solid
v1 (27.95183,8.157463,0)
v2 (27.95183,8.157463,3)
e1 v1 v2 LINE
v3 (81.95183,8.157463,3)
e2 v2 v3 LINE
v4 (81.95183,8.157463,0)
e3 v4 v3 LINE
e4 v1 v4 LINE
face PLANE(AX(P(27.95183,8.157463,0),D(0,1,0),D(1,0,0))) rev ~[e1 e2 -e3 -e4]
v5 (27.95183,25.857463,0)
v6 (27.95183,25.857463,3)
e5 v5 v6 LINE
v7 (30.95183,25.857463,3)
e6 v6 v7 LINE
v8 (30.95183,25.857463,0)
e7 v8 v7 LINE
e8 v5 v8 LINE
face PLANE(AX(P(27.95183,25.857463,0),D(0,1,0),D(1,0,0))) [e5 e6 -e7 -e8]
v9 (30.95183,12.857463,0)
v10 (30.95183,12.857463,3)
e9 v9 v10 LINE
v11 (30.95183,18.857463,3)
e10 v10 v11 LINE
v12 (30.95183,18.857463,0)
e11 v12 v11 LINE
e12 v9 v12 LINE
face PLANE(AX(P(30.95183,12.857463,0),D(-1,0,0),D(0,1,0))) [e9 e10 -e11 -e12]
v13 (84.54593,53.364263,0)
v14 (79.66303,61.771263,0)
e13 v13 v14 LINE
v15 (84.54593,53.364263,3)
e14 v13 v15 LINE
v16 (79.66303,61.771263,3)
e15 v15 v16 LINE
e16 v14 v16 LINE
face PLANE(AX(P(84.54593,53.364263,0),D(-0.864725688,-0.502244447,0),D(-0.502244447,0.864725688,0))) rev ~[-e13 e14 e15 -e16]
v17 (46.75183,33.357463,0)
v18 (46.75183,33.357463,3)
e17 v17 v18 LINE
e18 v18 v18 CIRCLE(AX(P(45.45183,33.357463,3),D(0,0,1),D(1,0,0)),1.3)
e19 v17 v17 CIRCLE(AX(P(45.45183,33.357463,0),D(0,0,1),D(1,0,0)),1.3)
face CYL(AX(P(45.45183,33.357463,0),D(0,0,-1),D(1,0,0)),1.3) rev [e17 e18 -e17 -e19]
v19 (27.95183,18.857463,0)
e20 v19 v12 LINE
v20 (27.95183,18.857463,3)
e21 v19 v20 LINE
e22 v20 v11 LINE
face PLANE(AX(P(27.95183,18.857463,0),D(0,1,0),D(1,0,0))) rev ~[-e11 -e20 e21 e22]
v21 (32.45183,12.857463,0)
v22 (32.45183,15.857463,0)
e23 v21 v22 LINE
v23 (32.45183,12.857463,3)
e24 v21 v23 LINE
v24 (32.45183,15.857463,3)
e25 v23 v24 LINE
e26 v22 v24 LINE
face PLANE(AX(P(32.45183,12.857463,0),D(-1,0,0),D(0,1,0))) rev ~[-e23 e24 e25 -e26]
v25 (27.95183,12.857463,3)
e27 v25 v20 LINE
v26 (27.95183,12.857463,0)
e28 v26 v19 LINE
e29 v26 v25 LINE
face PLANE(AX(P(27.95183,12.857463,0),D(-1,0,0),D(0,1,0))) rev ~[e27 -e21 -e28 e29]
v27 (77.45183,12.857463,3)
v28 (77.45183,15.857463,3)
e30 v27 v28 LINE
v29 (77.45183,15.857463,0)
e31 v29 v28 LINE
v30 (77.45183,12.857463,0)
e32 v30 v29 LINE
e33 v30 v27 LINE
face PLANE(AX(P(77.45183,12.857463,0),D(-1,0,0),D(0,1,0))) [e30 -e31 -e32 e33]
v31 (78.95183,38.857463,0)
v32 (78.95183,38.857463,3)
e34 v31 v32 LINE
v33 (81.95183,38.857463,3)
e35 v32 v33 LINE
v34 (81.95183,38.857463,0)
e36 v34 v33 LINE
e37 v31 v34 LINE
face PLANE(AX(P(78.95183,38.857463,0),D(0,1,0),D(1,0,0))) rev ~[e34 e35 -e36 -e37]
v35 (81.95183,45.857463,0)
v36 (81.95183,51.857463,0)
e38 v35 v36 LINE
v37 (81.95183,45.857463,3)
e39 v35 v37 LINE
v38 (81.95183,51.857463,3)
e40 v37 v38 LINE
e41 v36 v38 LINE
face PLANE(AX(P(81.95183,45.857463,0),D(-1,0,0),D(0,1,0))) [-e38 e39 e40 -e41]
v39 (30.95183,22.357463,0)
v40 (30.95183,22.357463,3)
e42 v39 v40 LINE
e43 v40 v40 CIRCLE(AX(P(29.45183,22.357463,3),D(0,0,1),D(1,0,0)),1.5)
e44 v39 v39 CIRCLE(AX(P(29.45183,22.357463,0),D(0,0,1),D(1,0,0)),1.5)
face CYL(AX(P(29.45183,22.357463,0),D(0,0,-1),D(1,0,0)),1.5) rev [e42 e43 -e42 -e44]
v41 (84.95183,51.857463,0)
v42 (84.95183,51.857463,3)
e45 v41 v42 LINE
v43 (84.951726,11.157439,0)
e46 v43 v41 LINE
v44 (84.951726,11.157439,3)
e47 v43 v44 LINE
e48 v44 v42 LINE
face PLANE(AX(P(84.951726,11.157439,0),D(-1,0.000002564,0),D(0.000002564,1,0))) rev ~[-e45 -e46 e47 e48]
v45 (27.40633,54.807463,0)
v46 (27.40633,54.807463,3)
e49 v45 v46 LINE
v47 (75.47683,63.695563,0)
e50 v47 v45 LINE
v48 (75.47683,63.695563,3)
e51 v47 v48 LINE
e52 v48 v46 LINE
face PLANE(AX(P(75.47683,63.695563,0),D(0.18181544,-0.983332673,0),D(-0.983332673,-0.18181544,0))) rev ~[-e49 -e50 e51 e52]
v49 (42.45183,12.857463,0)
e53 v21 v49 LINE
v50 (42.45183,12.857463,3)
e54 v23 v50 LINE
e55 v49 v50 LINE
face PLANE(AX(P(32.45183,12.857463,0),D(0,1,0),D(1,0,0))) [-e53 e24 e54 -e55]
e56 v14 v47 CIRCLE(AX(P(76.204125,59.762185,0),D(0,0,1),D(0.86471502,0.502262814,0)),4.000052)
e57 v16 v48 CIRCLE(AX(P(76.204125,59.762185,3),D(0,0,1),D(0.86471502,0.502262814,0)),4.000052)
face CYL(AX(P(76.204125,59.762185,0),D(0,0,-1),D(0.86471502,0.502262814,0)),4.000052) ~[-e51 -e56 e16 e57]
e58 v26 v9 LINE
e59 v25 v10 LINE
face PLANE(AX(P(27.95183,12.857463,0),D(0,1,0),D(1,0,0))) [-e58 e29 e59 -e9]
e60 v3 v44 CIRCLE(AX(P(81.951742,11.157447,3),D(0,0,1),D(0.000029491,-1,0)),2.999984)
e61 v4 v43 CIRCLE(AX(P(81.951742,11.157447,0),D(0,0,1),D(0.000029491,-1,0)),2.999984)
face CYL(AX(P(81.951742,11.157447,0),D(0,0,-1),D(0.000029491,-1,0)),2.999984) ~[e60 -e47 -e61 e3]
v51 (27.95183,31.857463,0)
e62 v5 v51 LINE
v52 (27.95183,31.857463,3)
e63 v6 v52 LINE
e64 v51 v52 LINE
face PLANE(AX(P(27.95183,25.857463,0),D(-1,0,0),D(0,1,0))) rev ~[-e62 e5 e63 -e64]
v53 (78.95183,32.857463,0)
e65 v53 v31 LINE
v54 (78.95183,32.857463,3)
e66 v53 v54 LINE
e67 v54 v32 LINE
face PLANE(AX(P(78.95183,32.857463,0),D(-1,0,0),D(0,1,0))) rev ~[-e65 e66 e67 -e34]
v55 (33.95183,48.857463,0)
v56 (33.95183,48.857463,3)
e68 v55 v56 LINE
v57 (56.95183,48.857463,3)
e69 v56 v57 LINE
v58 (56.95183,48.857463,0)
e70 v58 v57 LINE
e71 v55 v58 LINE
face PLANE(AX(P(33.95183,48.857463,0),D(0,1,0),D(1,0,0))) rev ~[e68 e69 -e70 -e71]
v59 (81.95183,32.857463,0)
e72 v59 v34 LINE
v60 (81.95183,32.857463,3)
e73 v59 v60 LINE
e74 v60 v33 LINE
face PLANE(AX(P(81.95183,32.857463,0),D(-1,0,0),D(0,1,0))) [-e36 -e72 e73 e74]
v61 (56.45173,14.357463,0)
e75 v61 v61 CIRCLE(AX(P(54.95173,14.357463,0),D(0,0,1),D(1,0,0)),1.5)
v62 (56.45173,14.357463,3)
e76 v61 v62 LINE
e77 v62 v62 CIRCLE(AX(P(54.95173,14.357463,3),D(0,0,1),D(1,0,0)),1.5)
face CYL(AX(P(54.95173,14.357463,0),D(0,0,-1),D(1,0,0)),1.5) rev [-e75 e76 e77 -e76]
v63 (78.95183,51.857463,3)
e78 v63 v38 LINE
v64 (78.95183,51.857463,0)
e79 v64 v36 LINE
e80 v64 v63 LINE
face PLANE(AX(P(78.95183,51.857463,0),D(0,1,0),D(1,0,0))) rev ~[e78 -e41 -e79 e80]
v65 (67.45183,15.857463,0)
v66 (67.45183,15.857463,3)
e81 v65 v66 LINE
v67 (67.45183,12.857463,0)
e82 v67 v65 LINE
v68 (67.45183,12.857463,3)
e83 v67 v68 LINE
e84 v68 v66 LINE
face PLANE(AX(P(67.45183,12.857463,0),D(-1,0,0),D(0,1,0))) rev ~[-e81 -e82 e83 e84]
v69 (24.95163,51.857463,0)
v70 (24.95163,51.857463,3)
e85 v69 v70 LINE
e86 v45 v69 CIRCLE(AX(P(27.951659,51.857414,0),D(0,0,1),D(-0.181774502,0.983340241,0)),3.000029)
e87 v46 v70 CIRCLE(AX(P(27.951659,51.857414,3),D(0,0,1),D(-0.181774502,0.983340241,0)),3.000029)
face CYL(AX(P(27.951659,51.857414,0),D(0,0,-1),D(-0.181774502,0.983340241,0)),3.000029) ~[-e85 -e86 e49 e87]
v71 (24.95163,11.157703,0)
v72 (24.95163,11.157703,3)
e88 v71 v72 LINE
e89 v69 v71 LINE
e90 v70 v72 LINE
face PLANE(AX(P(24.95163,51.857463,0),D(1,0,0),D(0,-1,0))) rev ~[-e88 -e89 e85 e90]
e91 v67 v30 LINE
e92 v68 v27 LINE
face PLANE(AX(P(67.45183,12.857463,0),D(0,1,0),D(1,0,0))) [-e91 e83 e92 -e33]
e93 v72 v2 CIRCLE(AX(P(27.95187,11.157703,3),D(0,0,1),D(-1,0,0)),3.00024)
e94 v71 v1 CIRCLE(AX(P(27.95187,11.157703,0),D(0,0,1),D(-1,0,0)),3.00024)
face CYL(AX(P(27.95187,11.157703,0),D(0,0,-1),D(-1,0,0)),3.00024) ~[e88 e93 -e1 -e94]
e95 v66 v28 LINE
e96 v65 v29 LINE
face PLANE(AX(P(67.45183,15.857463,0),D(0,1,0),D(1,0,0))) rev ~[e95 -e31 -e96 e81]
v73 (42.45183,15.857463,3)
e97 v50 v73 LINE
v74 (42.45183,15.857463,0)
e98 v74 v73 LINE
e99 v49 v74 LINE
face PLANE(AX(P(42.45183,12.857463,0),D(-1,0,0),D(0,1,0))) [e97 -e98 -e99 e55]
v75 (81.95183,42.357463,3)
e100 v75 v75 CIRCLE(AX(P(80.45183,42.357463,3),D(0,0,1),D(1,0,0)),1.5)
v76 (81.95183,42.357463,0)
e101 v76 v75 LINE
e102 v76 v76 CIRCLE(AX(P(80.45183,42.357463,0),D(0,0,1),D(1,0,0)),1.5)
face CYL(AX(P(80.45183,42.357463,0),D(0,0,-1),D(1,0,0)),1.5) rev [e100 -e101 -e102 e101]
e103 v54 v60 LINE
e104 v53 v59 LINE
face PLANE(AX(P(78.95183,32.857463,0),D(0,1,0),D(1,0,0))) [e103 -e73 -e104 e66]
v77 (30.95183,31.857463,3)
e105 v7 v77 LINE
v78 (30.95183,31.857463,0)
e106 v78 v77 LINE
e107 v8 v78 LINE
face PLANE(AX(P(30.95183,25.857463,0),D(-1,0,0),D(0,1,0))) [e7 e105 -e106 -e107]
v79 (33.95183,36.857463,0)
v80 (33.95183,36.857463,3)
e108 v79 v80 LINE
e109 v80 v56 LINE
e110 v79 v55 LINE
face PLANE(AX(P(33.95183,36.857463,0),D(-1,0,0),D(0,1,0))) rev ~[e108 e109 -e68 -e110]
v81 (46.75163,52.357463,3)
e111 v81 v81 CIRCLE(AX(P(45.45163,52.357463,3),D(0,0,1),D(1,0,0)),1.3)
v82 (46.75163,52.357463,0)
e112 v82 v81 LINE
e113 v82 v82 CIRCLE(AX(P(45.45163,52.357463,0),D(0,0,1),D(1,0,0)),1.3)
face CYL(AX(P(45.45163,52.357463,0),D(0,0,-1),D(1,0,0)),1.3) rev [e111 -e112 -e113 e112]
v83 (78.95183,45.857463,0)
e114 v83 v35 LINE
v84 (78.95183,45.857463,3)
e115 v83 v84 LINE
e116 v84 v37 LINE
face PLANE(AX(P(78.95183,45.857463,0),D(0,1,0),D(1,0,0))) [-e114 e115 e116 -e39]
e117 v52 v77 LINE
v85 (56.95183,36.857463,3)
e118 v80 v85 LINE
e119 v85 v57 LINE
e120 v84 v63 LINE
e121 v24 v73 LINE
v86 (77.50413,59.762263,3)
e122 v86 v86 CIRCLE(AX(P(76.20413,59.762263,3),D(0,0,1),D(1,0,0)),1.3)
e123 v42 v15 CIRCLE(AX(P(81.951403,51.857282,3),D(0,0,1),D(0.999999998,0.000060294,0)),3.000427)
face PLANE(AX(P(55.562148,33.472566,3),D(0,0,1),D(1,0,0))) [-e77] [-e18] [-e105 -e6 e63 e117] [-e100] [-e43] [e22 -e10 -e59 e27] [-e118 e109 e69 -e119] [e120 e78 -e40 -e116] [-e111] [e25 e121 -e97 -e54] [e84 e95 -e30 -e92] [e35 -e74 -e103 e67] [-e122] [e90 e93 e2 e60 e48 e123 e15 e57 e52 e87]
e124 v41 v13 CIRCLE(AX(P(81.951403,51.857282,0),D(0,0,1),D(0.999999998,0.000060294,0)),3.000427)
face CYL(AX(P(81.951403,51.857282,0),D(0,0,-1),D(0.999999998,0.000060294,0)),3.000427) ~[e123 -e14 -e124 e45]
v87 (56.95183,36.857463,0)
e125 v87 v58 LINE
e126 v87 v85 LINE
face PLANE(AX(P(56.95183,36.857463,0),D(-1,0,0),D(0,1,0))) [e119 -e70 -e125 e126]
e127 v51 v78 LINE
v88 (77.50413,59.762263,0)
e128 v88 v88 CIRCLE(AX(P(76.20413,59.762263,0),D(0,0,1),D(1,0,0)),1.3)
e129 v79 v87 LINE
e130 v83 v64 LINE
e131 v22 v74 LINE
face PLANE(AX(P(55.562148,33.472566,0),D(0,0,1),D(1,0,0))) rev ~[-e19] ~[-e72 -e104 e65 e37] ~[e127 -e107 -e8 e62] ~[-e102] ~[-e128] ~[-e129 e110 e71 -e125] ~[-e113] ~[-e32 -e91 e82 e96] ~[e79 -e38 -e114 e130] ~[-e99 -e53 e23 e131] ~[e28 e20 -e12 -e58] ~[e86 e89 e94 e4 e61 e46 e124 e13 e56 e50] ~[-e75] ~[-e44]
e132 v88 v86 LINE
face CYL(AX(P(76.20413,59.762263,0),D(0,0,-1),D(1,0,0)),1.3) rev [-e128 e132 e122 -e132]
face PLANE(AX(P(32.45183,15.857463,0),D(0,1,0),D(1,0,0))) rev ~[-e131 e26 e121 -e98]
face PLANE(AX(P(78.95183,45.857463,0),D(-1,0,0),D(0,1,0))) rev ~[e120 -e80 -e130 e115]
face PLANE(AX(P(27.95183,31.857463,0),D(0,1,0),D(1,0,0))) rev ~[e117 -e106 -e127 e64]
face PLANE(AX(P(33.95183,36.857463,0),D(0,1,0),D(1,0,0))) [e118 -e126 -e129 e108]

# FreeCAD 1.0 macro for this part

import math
import FreeCAD as App
import Part
import Sketcher

V = App.Vector
Q = App.Units.Quantity


def add_polygon(sketch, points):
    """Adds a closed chain of lines whose ends are joined by coincident constraints."""
    first, n = sketch.GeometryCount, len(points)
    for a, b in zip(points, points[1:] + points[:1]):
        sketch.addGeometry(Part.LineSegment(App.Vector(*a, 0), App.Vector(*b, 0)), False)
    for i in range(n):
        sketch.addConstraint(Sketcher.Constraint("Coincident", first + i, 2, first + (i + 1) % n, 1))

doc = App.newDocument("Part")
body = doc.addObject("PartDesign::Body", "Body")

# Sketch on XY plane
sketch1 = body.newObject("Sketcher::SketchObject", "Sketch")
sketch1.AttachmentSupport = (doc.getObject("XY_Plane"), [""])
sketch1.MapMode = "FlatFace"
sketch1.addGeometry(Part.LineSegment(V(25, 51.9, 0), V(25, 11.2, 0)), False)  # 0
sketch1.addGeometry(Part.ArcOfCircle(Part.Circle(V(28, 11.2, 0), V(0, 0, 1), 3), math.radians(180), math.radians(270)), False)  # 1
sketch1.addGeometry(Part.LineSegment(V(28, 8.2, 0), V(82, 8.2, 0)), False)  # 2
sketch1.addGeometry(Part.ArcOfCircle(Part.Circle(V(82, 11.2, 0), V(0, 0, 1), 3), math.radians(-90), math.radians(0)), False)  # 3
sketch1.addGeometry(Part.LineSegment(V(85, 11.2, 0), V(85, 51.9, 0)), False)  # 4
sketch1.addGeometry(Part.ArcOfCircle(Part.Circle(V(82, 51.9, 0), V(0, 0, 1), 3), math.radians(0), math.radians(30)), False)  # 5
sketch1.addGeometry(Part.LineSegment(V(84.5, 53.4, 0), V(79.7, 61.8, 0)), False)  # 6
sketch1.addGeometry(Part.ArcOfCircle(Part.Circle(V(76.2, 59.8, 0), V(0, 0, 1), 4), math.radians(30), math.radians(100)), False)  # 7
sketch1.addGeometry(Part.LineSegment(V(75.5, 63.7, 0), V(27.4, 54.8, 0)), False)  # 8
sketch1.addGeometry(Part.ArcOfCircle(Part.Circle(V(28, 51.9, 0), V(0, 0, 1), 3), math.radians(100), math.radians(180)), False)  # 9
add_polygon(sketch1, [(31, 12.9), (28, 12.9), (28, 18.9), (31, 18.9)])  # lines 10-13
add_polygon(sketch1, [(42.5, 12.9), (32.5, 12.9), (32.5, 15.9), (42.5, 15.9)])  # lines 14-17
sketch1.addGeometry(Part.Circle(V(29.5, 22.4, 0), V(0, 0, 1), 1.5), False)  # 18
sketch1.addGeometry(Part.Circle(V(55, 14.4, 0), V(0, 0, 1), 1.5), False)  # 19
add_polygon(sketch1, [(31, 25.9), (28, 25.9), (28, 31.9), (31, 31.9)])  # lines 20-23
sketch1.addGeometry(Part.Circle(V(45.5, 33.4, 0), V(0, 0, 1), 1.3), False)  # 24
add_polygon(sketch1, [(77.5, 12.9), (67.5, 12.9), (67.5, 15.9), (77.5, 15.9)])  # lines 25-28
add_polygon(sketch1, [(82, 32.9), (79, 32.9), (79, 38.9), (82, 38.9)])  # lines 29-32
add_polygon(sketch1, [(57, 36.9), (34, 36.9), (34, 48.9), (57, 48.9)])  # lines 33-36
sketch1.addGeometry(Part.Circle(V(45.5, 52.4, 0), V(0, 0, 1), 1.3), False)  # 37
sketch1.addGeometry(Part.Circle(V(80.5, 42.4, 0), V(0, 0, 1), 1.5), False)  # 38
add_polygon(sketch1, [(82, 45.9), (79, 45.9), (79, 51.9), (82, 51.9)])  # lines 39-42
sketch1.addGeometry(Part.Circle(V(76.2, 59.8, 0), V(0, 0, 1), 1.3), False)  # 43
sketch1.addConstraint([
    Sketcher.Constraint("Tangent", 0, 2, 1, 1),
    Sketcher.Constraint("Coincident", 1, 2, 2, 1),
    Sketcher.Constraint("Coincident", 2, 2, 3, 1),
    Sketcher.Constraint("Tangent", 3, 2, 4, 1),
    Sketcher.Constraint("Coincident", 4, 2, 5, 1),
    Sketcher.Constraint("Coincident", 5, 2, 6, 1),
    Sketcher.Constraint("Coincident", 6, 2, 7, 1),
    Sketcher.Constraint("Coincident", 7, 2, 8, 1),
    Sketcher.Constraint("Coincident", 8, 2, 9, 1),
    Sketcher.Constraint("Coincident", 9, 2, 0, 1),
    Sketcher.Constraint("Vertical", 0),
    Sketcher.Constraint("Horizontal", 2),
    Sketcher.Constraint("Horizontal", 10),
    Sketcher.Constraint("Vertical", 11),
    Sketcher.Constraint("Horizontal", 12),
    Sketcher.Constraint("Vertical", 13),
    Sketcher.Constraint("Horizontal", 14),
    Sketcher.Constraint("Vertical", 15),
    Sketcher.Constraint("Horizontal", 16),
    Sketcher.Constraint("Vertical", 17),
    Sketcher.Constraint("Horizontal", 20),
    Sketcher.Constraint("Vertical", 21),
    Sketcher.Constraint("Horizontal", 22),
    Sketcher.Constraint("Vertical", 23),
    Sketcher.Constraint("Horizontal", 25),
    Sketcher.Constraint("Vertical", 26),
    Sketcher.Constraint("Horizontal", 27),
    Sketcher.Constraint("Vertical", 28),
    Sketcher.Constraint("Horizontal", 29),
    Sketcher.Constraint("Vertical", 30),
    Sketcher.Constraint("Horizontal", 31),
    Sketcher.Constraint("Vertical", 32),
    Sketcher.Constraint("Horizontal", 33),
    Sketcher.Constraint("Vertical", 34),
    Sketcher.Constraint("Horizontal", 35),
    Sketcher.Constraint("Vertical", 36),
    Sketcher.Constraint("Horizontal", 39),
    Sketcher.Constraint("Vertical", 40),
    Sketcher.Constraint("Horizontal", 41),
    Sketcher.Constraint("Vertical", 42),
    Sketcher.Constraint("Equal", 18, 19),
    Sketcher.Constraint("Equal", 24, 37),
    Sketcher.Constraint("Equal", 19, 38),
    Sketcher.Constraint("Equal", 37, 43),
    Sketcher.Constraint("Horizontal", 4, 2, 9, 2),
    Sketcher.Constraint("Horizontal", 13, 2, 14, 2),
    Sketcher.Constraint("Horizontal", 17, 2, 25, 2),
    Sketcher.Constraint("Horizontal", 16, 2, 26, 2),
    Sketcher.Constraint("Horizontal", 9, 2, 40, 2),
    Sketcher.Constraint("Vertical", 1, 2, 10, 2),
    Sketcher.Constraint("Vertical", 11, 2, 20, 2),
    Sketcher.Constraint("Vertical", 13, 2, 22, 2),
    Sketcher.Constraint("Vertical", 2, 2, 31, 2),
    Sketcher.Constraint("Vertical", 30, 2, 39, 2),
    Sketcher.Constraint("Vertical", 32, 2, 41, 2),
    Sketcher.Constraint("Equal", 16, 25),
    Sketcher.Constraint("Equal", 22, 29),
    Sketcher.Constraint("Equal", 41, 15),
    Sketcher.Constraint("Equal", 13, 21),
    Sketcher.Constraint("Equal", 23, 30),
    Sketcher.Constraint("Equal", 32, 40),
    Sketcher.Constraint("Diameter", 18, Q("3 mm")),
    Sketcher.Constraint("Diameter", 24, Q("2.6 mm")),
    Sketcher.Constraint("DistanceX", 2, 1, 2, 2, Q("54 mm")),
    Sketcher.Constraint("DistanceX", 10, 2, 10, 1, Q("3 mm")),
    Sketcher.Constraint("DistanceX", 14, 2, 14, 1, Q("10 mm")),
    Sketcher.Constraint("DistanceX", 33, 2, 33, 1, Q("23 mm")),
    Sketcher.Constraint("DistanceY", 11, 1, 11, 2, Q("6 mm")),
    Sketcher.Constraint("DistanceY", 34, 1, 34, 2, Q("12 mm")),
    Sketcher.Constraint("DistanceY", 19, 3, 18, 3, Q("8 mm")),
    Sketcher.Constraint("DistanceX", 18, 3, 24, 3, Q("16 mm")),
    Sketcher.Constraint("DistanceY", 18, 3, 24, 3, Q("11 mm")),
    Sketcher.Constraint("DistanceY", 24, 3, 37, 3, Q("19 mm")),
    Sketcher.Constraint("DistanceX", 24, 3, 38, 3, Q("35 mm")),
    Sketcher.Constraint("DistanceY", 24, 3, 38, 3, Q("9 mm")),
    Sketcher.Constraint("DistanceY", 11, 2, 20, 2, Q("7 mm")),
    Sketcher.Constraint("DistanceX", 17, 2, 25, 2, Q("25 mm")),
    Sketcher.Constraint("DistanceY", 27, 2, 29, 2, Q("17 mm")),
    Sketcher.Constraint("DistanceX", 29, 2, 4, 2, Q("6 mm")),
    Sketcher.Constraint("DistanceY", 29, 2, 4, 2, Q("19 mm")),
    Sketcher.Constraint("DistanceX", 22, 2, 33, 2, Q("3 mm")),
    Sketcher.Constraint("DistanceY", 22, 2, 33, 2, Q("5 mm")),
    Sketcher.Constraint("DistanceX", 1, 2, 18, 3, Q("1.5 mm")),
    Sketcher.Constraint("DistanceY", 1, 2, 18, 3, Q("14.2 mm")),
    Sketcher.Constraint("DistanceY", 38, 3, 4, 2, Q("9.5 mm")),
    Sketcher.Constraint("DistanceX", 9, 2, 37, 3, Q("20.5 mm")),
    Sketcher.Constraint("DistanceX", 13, 2, 14, 2, Q("1.5 mm")),
    Sketcher.Constraint("Radius", 1, Q("3.00024 mm")),
    Sketcher.Constraint("Radius", 7, Q("4.000052 mm")),
    Sketcher.Constraint("Radius", 9, Q("3.000029 mm")),
    Sketcher.Constraint("DistanceY", 37, 3, 8, 2, Q("2.45 mm")),
    Sketcher.Constraint("Radius", 3, Q("2.999984 mm")),
    Sketcher.Constraint("Radius", 5, Q("3.000427 mm")),
    Sketcher.Constraint("DistanceY", 5, 2, 43, 3, Q("6.398 mm")),
    Sketcher.Constraint("DistanceY", 43, 3, 6, 2, Q("2.009 mm")),
    Sketcher.Constraint("DistanceX", 18, 3, 19, 3, Q("25.4999 mm")),
    Sketcher.Constraint("DistanceX", 37, 3, 24, 3, Q("0.0002 mm")),
    Sketcher.Constraint("DistanceX", 43, 3, 38, 3, Q("4.2477 mm")),
    Sketcher.Constraint("DistanceY", 38, 3, 43, 3, Q("17.4048 mm")),
    Sketcher.Constraint("DistanceX", 5, 2, 4, 2, Q("0.4059 mm")),
    Sketcher.Constraint("DistanceX", 43, 3, 6, 2, Q("3.4589 mm")),
    Sketcher.Constraint("DistanceX", 7, 2, 43, 3, Q("0.7273 mm")),
    Sketcher.Constraint("DistanceY", 43, 3, 7, 2, Q("3.9333 mm")),
    Sketcher.Constraint("DistanceX", 8, 2, 37, 3, Q("18.0453 mm")),
    Sketcher.Constraint("DistanceX", -1, 1, 1, 3, Q("27.95187 mm")),
    Sketcher.Constraint("DistanceX", -1, 1, 3, 3, Q("81.951742 mm")),
    Sketcher.Constraint("DistanceY", -1, 1, 5, 3, Q("51.857282 mm")),
])
pad1 = body.newObject("PartDesign::Pad", "Pad")
pad1.Profile = sketch1
pad1.Length = 3

doc.recompute()
